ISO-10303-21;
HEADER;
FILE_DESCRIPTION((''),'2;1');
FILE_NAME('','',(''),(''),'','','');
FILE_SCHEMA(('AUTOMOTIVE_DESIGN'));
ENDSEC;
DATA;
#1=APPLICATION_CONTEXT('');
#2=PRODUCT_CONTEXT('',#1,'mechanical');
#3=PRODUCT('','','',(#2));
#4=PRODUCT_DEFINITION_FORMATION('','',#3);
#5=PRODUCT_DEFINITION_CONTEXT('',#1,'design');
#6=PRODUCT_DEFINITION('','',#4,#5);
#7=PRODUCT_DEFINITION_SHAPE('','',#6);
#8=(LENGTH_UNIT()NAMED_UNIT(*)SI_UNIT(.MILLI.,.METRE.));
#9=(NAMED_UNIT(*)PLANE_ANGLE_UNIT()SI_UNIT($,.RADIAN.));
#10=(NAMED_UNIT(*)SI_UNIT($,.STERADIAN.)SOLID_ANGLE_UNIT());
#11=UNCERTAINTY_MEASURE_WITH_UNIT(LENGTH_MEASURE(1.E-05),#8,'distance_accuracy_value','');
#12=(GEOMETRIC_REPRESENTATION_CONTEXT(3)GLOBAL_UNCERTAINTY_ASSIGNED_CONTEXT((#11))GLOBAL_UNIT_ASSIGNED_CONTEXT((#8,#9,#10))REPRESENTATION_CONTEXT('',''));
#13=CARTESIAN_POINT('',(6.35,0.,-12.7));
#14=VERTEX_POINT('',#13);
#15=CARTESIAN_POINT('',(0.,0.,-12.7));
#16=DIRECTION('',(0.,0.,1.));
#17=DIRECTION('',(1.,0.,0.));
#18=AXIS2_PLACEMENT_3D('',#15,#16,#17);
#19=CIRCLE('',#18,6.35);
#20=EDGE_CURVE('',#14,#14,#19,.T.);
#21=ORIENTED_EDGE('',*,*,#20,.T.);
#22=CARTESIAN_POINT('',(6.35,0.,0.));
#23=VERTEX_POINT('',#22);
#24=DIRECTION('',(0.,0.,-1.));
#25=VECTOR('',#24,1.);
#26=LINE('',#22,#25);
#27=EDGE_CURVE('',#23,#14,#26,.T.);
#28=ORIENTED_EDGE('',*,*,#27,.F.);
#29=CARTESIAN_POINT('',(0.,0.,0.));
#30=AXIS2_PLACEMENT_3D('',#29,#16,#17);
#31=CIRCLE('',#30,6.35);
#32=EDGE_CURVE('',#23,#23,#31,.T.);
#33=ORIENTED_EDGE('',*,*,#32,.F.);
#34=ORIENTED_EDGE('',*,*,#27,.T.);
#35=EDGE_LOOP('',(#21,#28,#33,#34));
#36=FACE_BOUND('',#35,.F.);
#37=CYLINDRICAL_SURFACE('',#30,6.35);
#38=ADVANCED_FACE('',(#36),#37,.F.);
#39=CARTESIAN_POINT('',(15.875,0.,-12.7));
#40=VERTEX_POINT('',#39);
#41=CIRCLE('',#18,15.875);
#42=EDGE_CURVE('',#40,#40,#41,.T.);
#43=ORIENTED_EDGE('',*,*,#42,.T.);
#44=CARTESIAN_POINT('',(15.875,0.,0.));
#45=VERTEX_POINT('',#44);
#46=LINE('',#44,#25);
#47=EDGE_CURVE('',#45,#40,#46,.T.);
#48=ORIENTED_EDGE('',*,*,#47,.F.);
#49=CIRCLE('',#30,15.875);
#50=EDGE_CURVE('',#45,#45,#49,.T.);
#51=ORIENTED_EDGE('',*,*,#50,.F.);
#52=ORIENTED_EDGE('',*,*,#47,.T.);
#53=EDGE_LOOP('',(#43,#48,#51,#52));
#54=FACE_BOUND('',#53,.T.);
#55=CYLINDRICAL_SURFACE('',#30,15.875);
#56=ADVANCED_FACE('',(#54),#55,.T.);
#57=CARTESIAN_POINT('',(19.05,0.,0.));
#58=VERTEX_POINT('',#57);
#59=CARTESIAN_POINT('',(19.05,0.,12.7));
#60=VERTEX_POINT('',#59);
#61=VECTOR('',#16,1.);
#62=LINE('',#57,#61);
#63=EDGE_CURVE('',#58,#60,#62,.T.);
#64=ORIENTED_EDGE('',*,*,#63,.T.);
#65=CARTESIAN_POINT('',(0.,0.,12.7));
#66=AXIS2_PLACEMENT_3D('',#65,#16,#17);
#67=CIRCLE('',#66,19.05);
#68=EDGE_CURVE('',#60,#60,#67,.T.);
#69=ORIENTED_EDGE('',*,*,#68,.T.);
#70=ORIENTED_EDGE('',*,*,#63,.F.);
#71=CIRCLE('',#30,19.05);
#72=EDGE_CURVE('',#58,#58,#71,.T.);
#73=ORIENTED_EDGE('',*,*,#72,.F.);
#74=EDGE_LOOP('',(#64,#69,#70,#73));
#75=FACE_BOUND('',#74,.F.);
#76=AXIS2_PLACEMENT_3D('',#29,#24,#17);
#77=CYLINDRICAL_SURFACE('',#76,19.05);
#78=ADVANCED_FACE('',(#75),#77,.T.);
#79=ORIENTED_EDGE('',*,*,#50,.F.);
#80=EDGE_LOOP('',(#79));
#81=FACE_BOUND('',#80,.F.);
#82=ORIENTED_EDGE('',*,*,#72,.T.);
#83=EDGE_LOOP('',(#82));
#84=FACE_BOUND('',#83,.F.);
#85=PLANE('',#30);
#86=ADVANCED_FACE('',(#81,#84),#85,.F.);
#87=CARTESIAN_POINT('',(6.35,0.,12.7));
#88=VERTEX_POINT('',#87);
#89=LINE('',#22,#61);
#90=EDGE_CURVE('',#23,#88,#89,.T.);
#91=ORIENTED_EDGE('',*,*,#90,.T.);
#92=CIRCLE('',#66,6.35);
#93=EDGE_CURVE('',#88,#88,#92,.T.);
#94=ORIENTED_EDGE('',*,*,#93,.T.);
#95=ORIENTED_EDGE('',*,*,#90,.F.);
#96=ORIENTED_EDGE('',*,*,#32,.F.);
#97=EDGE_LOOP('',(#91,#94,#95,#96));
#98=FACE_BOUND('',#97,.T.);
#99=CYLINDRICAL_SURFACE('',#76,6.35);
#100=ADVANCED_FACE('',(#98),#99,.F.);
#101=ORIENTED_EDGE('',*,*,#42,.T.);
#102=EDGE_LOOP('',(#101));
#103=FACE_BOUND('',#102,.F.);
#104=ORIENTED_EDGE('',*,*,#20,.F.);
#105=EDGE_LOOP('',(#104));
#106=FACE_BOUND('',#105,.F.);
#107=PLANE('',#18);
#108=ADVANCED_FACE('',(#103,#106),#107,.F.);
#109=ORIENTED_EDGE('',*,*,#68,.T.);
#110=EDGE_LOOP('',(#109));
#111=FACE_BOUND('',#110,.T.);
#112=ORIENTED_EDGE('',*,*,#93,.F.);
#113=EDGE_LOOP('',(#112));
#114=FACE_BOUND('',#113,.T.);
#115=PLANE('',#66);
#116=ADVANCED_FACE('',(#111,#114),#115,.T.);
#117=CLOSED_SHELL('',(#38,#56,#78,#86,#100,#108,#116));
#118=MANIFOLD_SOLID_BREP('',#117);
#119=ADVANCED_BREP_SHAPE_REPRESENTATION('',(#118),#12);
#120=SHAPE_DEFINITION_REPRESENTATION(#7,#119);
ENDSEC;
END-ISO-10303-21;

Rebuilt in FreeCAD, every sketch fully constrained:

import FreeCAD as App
import Part
import Sketcher
from FreeCAD import Vector
Q = App.Units.Quantity

doc = App.newDocument("Part")
body = doc.addObject("PartDesign::Body", "Body")

sketch1 = doc.addObject("Sketcher::SketchObject", "Sketch")
body.addObject(sketch1)
sketch1.AttachmentSupport = (doc.XY_Plane, [""])
sketch1.MapMode = "FlatFace"
sketch1.addGeometry([
    Part.Circle(Vector(0, 0, 0), Vector(0, 0, 1), 15.875),
    Part.Circle(Vector(0, 0, 0), Vector(0, 0, 1), 6.35),
], False)
sketch1.addConstraint([
    Sketcher.Constraint("Coincident", 0, 3, -1, 1),
    Sketcher.Constraint("Coincident", 1, 3, -1, 1),
    Sketcher.Constraint("Diameter", 1, Q("0.5 in")),
    Sketcher.Constraint("Diameter", 0, Q("1.25 in")),
])
pad1 = doc.addObject("PartDesign::Pad", "Pad")
body.addObject(pad1)
pad1.Profile = sketch1
pad1.Length = Q("0.5 in")
pad1.Reversed = True

sketch2 = doc.addObject("Sketcher::SketchObject", "Sketch001")
body.addObject(sketch2)
sketch2.AttachmentSupport = (doc.XY_Plane, [""])
sketch2.MapMode = "FlatFace"
sketch2.addGeometry([
    Part.Circle(Vector(0, 0, 0), Vector(0, 0, 1), 19.05),
    Part.Circle(Vector(0, 0, 0), Vector(0, 0, 1), 6.35),
], False)
sketch2.addConstraint([
    Sketcher.Constraint("Coincident", 0, 3, -1, 1),
    Sketcher.Constraint("Coincident", 1, 3, -1, 1),
    Sketcher.Constraint("Diameter", 0, Q("1.5 in")),
    Sketcher.Constraint("Diameter", 1, Q("0.5 in")),
])
pad2 = doc.addObject("PartDesign::Pad", "Pad001")
body.addObject(pad2)
pad2.Profile = sketch2
pad2.Length = Q("0.5 in")

doc.recompute()
